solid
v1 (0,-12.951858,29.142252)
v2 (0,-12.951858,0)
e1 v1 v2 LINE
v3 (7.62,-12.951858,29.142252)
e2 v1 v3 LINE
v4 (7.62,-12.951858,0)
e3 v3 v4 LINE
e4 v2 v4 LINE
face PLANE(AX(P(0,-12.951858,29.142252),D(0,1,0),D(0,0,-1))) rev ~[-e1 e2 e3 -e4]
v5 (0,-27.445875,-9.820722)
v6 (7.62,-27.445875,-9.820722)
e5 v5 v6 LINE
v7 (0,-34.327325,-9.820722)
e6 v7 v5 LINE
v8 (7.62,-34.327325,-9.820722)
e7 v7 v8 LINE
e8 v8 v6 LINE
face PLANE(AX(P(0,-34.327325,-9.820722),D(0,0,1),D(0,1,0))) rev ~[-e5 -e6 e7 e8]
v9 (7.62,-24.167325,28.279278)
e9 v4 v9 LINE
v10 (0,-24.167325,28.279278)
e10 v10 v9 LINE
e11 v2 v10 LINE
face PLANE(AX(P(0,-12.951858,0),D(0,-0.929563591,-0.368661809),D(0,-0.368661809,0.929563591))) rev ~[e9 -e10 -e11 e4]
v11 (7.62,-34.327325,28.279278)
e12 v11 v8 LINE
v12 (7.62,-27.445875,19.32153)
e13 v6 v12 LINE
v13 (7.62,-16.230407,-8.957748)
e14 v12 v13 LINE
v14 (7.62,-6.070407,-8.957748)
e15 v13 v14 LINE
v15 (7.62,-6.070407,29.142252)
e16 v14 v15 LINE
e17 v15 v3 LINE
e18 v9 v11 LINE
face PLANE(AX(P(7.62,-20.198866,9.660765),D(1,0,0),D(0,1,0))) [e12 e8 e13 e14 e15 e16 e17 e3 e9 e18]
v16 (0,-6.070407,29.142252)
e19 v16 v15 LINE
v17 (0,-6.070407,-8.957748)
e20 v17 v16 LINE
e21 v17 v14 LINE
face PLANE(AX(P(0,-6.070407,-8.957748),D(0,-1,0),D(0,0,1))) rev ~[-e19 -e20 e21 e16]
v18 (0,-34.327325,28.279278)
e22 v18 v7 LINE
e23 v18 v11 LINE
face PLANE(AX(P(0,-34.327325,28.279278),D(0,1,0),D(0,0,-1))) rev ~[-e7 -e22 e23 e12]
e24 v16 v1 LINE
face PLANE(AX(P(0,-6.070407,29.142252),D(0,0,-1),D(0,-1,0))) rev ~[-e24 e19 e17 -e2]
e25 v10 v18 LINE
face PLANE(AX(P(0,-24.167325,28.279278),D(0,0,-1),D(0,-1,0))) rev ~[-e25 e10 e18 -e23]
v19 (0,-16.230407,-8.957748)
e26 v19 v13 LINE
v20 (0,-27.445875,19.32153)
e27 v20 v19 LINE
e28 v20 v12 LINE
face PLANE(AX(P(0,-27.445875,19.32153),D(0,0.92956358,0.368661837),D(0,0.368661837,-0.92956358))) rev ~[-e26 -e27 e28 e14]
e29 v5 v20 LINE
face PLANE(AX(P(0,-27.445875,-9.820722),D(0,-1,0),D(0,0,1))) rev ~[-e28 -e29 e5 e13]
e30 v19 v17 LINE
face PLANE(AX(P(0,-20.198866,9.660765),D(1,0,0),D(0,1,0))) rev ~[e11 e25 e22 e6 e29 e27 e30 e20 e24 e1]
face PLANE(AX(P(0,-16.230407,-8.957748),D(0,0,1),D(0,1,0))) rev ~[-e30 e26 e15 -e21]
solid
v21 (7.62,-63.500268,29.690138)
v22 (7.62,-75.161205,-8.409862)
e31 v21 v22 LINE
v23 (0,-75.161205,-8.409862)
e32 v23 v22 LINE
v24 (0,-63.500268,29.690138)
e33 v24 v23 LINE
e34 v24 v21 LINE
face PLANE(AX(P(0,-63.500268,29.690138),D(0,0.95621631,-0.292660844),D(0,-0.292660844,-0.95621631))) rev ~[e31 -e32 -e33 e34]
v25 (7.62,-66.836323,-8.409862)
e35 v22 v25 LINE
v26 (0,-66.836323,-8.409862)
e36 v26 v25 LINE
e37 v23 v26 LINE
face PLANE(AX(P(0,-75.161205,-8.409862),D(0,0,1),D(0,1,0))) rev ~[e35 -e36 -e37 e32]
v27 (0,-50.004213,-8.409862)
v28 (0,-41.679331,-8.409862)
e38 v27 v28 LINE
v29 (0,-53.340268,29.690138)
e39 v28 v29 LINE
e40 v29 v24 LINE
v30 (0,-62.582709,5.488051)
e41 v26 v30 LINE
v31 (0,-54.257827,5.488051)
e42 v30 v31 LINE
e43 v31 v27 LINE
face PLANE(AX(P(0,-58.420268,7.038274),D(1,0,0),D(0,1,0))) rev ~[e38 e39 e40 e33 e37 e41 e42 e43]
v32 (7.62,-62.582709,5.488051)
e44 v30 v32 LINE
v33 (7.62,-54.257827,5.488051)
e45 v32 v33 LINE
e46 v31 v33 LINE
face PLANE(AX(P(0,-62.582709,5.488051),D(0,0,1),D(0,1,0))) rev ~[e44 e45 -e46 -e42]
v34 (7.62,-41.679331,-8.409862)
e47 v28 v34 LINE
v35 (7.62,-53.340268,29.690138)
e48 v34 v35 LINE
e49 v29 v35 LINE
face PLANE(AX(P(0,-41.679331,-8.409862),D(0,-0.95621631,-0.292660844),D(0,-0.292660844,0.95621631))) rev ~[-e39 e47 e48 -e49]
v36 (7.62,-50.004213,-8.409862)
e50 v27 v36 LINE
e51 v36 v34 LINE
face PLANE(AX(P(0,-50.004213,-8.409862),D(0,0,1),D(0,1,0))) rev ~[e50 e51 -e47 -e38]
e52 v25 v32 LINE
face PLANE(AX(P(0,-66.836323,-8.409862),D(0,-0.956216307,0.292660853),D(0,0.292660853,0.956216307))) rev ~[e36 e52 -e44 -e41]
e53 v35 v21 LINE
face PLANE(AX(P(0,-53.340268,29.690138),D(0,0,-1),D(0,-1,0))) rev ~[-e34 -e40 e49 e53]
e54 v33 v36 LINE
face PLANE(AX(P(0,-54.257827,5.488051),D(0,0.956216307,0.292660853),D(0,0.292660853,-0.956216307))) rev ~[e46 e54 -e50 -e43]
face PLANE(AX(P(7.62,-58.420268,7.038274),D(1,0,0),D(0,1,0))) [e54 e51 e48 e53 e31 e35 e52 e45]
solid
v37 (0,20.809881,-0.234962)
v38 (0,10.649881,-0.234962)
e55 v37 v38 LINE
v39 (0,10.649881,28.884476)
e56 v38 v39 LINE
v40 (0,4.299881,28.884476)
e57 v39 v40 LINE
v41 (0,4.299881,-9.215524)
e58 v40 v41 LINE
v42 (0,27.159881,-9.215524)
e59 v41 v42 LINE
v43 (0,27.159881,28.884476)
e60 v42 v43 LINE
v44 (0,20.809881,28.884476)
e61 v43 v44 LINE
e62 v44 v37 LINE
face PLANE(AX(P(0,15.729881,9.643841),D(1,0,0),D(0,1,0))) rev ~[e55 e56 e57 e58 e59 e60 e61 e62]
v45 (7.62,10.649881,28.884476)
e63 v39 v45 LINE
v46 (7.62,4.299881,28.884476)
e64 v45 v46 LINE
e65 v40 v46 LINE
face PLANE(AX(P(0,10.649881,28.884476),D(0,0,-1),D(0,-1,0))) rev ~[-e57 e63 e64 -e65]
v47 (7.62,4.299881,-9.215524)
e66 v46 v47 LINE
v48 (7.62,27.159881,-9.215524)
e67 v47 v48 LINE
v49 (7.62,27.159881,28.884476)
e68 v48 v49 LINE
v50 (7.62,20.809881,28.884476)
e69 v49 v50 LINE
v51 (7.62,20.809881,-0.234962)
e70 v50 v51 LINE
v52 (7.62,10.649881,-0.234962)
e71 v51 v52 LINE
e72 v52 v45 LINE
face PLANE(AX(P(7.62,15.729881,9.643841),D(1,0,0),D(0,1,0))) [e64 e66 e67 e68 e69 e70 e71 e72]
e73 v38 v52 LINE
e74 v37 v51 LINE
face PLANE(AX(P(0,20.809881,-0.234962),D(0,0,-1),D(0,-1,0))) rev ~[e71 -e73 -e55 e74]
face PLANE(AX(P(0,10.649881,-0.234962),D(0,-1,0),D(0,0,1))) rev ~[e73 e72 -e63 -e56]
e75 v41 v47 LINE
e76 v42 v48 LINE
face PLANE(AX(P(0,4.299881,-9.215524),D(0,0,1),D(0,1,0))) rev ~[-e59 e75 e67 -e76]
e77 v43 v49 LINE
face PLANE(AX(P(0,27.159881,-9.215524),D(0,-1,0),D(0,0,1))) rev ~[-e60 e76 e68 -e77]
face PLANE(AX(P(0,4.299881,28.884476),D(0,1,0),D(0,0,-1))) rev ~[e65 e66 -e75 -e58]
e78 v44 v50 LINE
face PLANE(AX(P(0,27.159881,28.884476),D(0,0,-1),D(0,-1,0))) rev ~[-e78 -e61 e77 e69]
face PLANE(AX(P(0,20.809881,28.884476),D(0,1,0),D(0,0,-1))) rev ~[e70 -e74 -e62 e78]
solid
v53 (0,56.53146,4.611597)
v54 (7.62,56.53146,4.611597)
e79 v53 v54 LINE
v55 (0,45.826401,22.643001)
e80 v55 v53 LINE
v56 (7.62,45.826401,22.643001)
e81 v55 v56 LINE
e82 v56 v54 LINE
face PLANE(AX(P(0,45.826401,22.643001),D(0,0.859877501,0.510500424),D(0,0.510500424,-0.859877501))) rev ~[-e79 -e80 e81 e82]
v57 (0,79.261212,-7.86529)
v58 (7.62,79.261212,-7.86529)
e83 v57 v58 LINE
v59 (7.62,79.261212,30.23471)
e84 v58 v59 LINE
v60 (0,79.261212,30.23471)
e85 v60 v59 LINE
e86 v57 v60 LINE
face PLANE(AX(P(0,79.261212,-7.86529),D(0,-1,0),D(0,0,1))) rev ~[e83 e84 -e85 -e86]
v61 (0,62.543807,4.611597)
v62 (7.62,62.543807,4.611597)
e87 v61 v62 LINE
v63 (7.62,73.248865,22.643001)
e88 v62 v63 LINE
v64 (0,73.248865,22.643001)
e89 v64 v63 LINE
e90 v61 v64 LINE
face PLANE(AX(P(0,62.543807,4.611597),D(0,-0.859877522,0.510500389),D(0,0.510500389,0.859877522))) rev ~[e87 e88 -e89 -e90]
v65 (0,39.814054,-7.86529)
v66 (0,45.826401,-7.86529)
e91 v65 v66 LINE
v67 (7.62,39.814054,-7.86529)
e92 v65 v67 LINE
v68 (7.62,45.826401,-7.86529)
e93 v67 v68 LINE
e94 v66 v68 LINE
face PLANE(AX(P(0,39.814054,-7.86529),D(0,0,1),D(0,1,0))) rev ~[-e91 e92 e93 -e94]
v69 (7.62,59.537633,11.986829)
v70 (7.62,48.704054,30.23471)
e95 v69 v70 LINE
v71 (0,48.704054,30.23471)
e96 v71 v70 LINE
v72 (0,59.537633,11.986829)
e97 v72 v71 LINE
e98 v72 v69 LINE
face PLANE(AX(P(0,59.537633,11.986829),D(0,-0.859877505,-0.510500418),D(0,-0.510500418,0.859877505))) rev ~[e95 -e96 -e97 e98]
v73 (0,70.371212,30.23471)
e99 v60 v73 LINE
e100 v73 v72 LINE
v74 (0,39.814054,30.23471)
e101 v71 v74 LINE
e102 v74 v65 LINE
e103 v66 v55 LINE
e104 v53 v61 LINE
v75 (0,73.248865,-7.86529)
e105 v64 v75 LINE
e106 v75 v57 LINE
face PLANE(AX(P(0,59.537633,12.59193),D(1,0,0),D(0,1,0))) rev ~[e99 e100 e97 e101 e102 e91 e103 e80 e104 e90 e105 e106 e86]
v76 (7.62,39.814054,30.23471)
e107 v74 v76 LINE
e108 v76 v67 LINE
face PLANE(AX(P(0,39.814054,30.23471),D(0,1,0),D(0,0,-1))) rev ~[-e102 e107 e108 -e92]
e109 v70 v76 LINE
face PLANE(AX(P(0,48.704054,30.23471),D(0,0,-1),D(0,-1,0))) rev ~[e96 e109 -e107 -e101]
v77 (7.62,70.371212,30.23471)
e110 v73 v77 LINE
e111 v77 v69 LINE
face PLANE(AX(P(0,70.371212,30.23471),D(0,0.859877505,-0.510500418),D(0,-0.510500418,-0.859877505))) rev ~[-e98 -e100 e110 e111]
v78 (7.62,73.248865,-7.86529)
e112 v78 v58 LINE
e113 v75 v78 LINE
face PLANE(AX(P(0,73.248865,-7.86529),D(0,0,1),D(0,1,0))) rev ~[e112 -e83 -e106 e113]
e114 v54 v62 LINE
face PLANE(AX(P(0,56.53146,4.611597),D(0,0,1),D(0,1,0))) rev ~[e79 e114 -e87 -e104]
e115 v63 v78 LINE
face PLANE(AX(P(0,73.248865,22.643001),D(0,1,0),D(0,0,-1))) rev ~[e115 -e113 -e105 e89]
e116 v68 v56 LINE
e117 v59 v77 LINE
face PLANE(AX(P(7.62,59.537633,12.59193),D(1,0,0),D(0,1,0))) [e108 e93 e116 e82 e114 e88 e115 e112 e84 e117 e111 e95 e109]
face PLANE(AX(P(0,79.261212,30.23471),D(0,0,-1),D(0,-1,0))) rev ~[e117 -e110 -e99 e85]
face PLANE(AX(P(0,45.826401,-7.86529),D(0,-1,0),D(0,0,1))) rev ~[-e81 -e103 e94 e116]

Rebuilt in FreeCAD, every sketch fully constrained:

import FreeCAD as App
import Part
import Sketcher

V = App.Vector
Q = App.Units.Quantity

doc = App.newDocument("Part")
body = doc.addObject("PartDesign::Body", "Body")
body.AllowCompound = True

# Sketch on YZ plane
sketch1 = body.newObject("Sketcher::SketchObject", "Sketch")
sketch1.AttachmentSupport = (doc.getObject("YZ_Plane"), [""])
sketch1.MapMode = "FlatFace"
sketch1.addGeometry([
    Part.LineSegment(V(-63.500268, 29.690138, 0), V(-75.161205, -8.409862, 0)),  # 0
    Part.LineSegment(V(-75.161205, -8.409862, 0), V(-66.836323, -8.409862, 0)),  # 1
    Part.LineSegment(V(-66.836323, -8.409862, 0), V(-62.582709, 5.488051, 0)),  # 2
    Part.LineSegment(V(-62.582709, 5.488051, 0), V(-54.257827, 5.488051, 0)),  # 3
    Part.LineSegment(V(-54.257827, 5.488051, 0), V(-50.004213, -8.409862, 0)),  # 4
    Part.LineSegment(V(-50.004213, -8.409862, 0), V(-41.679331, -8.409862, 0)),  # 5
    Part.LineSegment(V(-41.679331, -8.409862, 0), V(-53.340268, 29.690138, 0)),  # 6
    Part.LineSegment(V(-53.340268, 29.690138, 0), V(-63.500268, 29.690138, 0)),  # 7
    Part.LineSegment(V(-34.327325, 28.279278, 0), V(-34.327325, -9.820722, 0)),  # 8
    Part.LineSegment(V(-34.327325, -9.820722, 0), V(-27.445875, -9.820722, 0)),  # 9
    Part.LineSegment(V(-27.445875, -9.820722, 0), V(-27.445875, 19.32153, 0)),  # 10
    Part.LineSegment(V(-27.445875, 19.32153, 0), V(-16.230407, -8.957748, 0)),  # 11
    Part.LineSegment(V(-16.230407, -8.957748, 0), V(-6.070407, -8.957748, 0)),  # 12
    Part.LineSegment(V(-6.070407, -8.957748, 0), V(-6.070407, 29.142252, 0)),  # 13
    Part.LineSegment(V(-6.070407, 29.142252, 0), V(-12.951858, 29.142252, 0)),  # 14
    Part.LineSegment(V(-12.951858, 29.142252, 0), V(-12.951858, 0, 0)),  # 15
    Part.LineSegment(V(-12.951858, 0, 0), V(-24.167325, 28.279278, 0)),  # 16
    Part.LineSegment(V(-24.167325, 28.279278, 0), V(-34.327325, 28.279278, 0)),  # 17
    Part.LineSegment(V(10.649881, 28.884476, 0), V(4.299881, 28.884476, 0)),  # 18
    Part.LineSegment(V(4.299881, 28.884476, 0), V(4.299881, -9.215524, 0)),  # 19
    Part.LineSegment(V(4.299881, -9.215524, 0), V(27.159881, -9.215524, 0)),  # 20
    Part.LineSegment(V(27.159881, -9.215524, 0), V(27.159881, 28.884476, 0)),  # 21
    Part.LineSegment(V(27.159881, 28.884476, 0), V(20.809881, 28.884476, 0)),  # 22
    Part.LineSegment(V(20.809881, 28.884476, 0), V(20.809881, -0.234962, 0)),  # 23
    Part.LineSegment(V(20.809881, -0.234962, 0), V(10.649881, -0.234962, 0)),  # 24
    Part.LineSegment(V(10.649881, -0.234962, 0), V(10.649881, 28.884476, 0)),  # 25
    Part.LineSegment(V(39.814054, 30.23471, 0), V(39.814054, -7.86529, 0)),  # 26
    Part.LineSegment(V(39.814054, -7.86529, 0), V(45.826401, -7.86529, 0)),  # 27
    Part.LineSegment(V(45.826401, -7.86529, 0), V(45.826401, 22.643001, 0)),  # 28
    Part.LineSegment(V(45.826401, 22.643001, 0), V(56.53146, 4.611597, 0)),  # 29
    Part.LineSegment(V(56.53146, 4.611597, 0), V(62.543807, 4.611597, 0)),  # 30
    Part.LineSegment(V(62.543807, 4.611597, 0), V(73.248865, 22.643001, 0)),  # 31
    Part.LineSegment(V(73.248865, 22.643001, 0), V(73.248865, -7.86529, 0)),  # 32
    Part.LineSegment(V(73.248865, -7.86529, 0), V(79.261212, -7.86529, 0)),  # 33
    Part.LineSegment(V(79.261212, -7.86529, 0), V(79.261212, 30.23471, 0)),  # 34
    Part.LineSegment(V(79.261212, 30.23471, 0), V(70.371212, 30.23471, 0)),  # 35
    Part.LineSegment(V(70.371212, 30.23471, 0), V(59.537633, 11.986829, 0)),  # 36
    Part.LineSegment(V(59.537633, 11.986829, 0), V(48.704054, 30.23471, 0)),  # 37
    Part.LineSegment(V(48.704054, 30.23471, 0), V(39.814054, 30.23471, 0)),  # 38
], False)
sketch1.addConstraint([
    Sketcher.Constraint("Coincident", 0, 2, 1, 1),
    Sketcher.Constraint("Coincident", 1, 2, 2, 1),
    Sketcher.Constraint("Coincident", 2, 2, 3, 1),
    Sketcher.Constraint("Coincident", 3, 2, 4, 1),
    Sketcher.Constraint("Coincident", 4, 2, 5, 1),
    Sketcher.Constraint("Coincident", 5, 2, 6, 1),
    Sketcher.Constraint("Coincident", 6, 2, 7, 1),
    Sketcher.Constraint("Coincident", 7, 2, 0, 1),
    Sketcher.Constraint("Coincident", 8, 2, 9, 1),
    Sketcher.Constraint("Coincident", 9, 2, 10, 1),
    Sketcher.Constraint("Coincident", 10, 2, 11, 1),
    Sketcher.Constraint("Coincident", 11, 2, 12, 1),
    Sketcher.Constraint("Coincident", 12, 2, 13, 1),
    Sketcher.Constraint("Coincident", 13, 2, 14, 1),
    Sketcher.Constraint("Coincident", 14, 2, 15, 1),
    Sketcher.Constraint("Coincident", 15, 2, 16, 1),
    Sketcher.Constraint("Coincident", 16, 2, 17, 1),
    Sketcher.Constraint("Coincident", 17, 2, 8, 1),
    Sketcher.Constraint("Coincident", 18, 2, 19, 1),
    Sketcher.Constraint("Coincident", 19, 2, 20, 1),
    Sketcher.Constraint("Coincident", 20, 2, 21, 1),
    Sketcher.Constraint("Coincident", 21, 2, 22, 1),
    Sketcher.Constraint("Coincident", 22, 2, 23, 1),
    Sketcher.Constraint("Coincident", 23, 2, 24, 1),
    Sketcher.Constraint("Coincident", 24, 2, 25, 1),
    Sketcher.Constraint("Coincident", 25, 2, 18, 1),
    Sketcher.Constraint("Coincident", 26, 2, 27, 1),
    Sketcher.Constraint("Coincident", 27, 2, 28, 1),
    Sketcher.Constraint("Coincident", 28, 2, 29, 1),
    Sketcher.Constraint("Coincident", 29, 2, 30, 1),
    Sketcher.Constraint("Coincident", 30, 2, 31, 1),
    Sketcher.Constraint("Coincident", 31, 2, 32, 1),
    Sketcher.Constraint("Coincident", 32, 2, 33, 1),
    Sketcher.Constraint("Coincident", 33, 2, 34, 1),
    Sketcher.Constraint("Coincident", 34, 2, 35, 1),
    Sketcher.Constraint("Coincident", 35, 2, 36, 1),
    Sketcher.Constraint("Coincident", 36, 2, 37, 1),
    Sketcher.Constraint("Coincident", 37, 2, 38, 1),
    Sketcher.Constraint("Coincident", 38, 2, 26, 1),
    Sketcher.Constraint("Horizontal", 1),
    Sketcher.Constraint("Horizontal", 3),
    Sketcher.Constraint("Horizontal", 5),
    Sketcher.Constraint("Horizontal", 7),
    Sketcher.Constraint("Vertical", 8),
    Sketcher.Constraint("Horizontal", 9),
    Sketcher.Constraint("Vertical", 10),
    Sketcher.Constraint("Horizontal", 12),
    Sketcher.Constraint("Vertical", 13),
    Sketcher.Constraint("Horizontal", 14),
    Sketcher.Constraint("Vertical", 15),
    Sketcher.Constraint("Horizontal", 17),
    Sketcher.Constraint("Horizontal", 18),
    Sketcher.Constraint("Vertical", 19),
    Sketcher.Constraint("Horizontal", 20),
    Sketcher.Constraint("Vertical", 21),
    Sketcher.Constraint("Horizontal", 22),
    Sketcher.Constraint("Vertical", 23),
    Sketcher.Constraint("Horizontal", 24),
    Sketcher.Constraint("Vertical", 25),
    Sketcher.Constraint("Vertical", 26),
    Sketcher.Constraint("Horizontal", 27),
    Sketcher.Constraint("Vertical", 28),
    Sketcher.Constraint("Horizontal", 30),
    Sketcher.Constraint("Vertical", 32),
    Sketcher.Constraint("Horizontal", 33),
    Sketcher.Constraint("Vertical", 34),
    Sketcher.Constraint("Horizontal", 35),
    Sketcher.Constraint("Horizontal", 38),
    Sketcher.Constraint("PointOnObject", 15, 2, -1),
    Sketcher.Constraint("Parallel", 0, 2),
    Sketcher.Constraint("Parallel", 4, 6),
    Sketcher.Constraint("Parallel", 11, 16),
    Sketcher.Constraint("Parallel", 31, 36),
    Sketcher.Constraint("Parallel", 29, 37),
    Sketcher.Constraint("Horizontal", 1, 2, 4, 2),
    Sketcher.Constraint("Horizontal", 18, 2, 21, 2),
    Sketcher.Constraint("Horizontal", 28, 2, 31, 2),
    Sketcher.Constraint("Horizontal", 27, 2, 32, 2),
    Sketcher.Constraint("Horizontal", 35, 2, 37, 2),
    Sketcher.Constraint("Equal", 1, 3),
    Sketcher.Constraint("Equal", 3, 5),
    Sketcher.Constraint("Equal", 7, 12),
    Sketcher.Constraint("Equal", 9, 14),
    Sketcher.Constraint("Equal", 12, 17),
    Sketcher.Constraint("Equal", 18, 22),
    Sketcher.Constraint("Equal", 17, 24),
    Sketcher.Constraint("Equal", 27, 30),
    Sketcher.Constraint("Equal", 30, 33),
    Sketcher.Constraint("Equal", 35, 38),
    Sketcher.Constraint("Equal", 8, 13),
    Sketcher.Constraint("Equal", 13, 19),
    Sketcher.Constraint("Equal", 21, 26),
    Sketcher.Constraint("Equal", 2, 4),
    Sketcher.Constraint("Equal", 29, 31),
    Sketcher.Constraint("DistanceX", 7, 2, 7, 1, Q("0.4 in")),
    Sketcher.Constraint("DistanceX", 20, 1, 20, 2, Q("0.9 in")),
    Sketcher.Constraint("DistanceY", 8, 2, 8, 1, Q("1.5 in")),
    Sketcher.Constraint("DistanceX", 35, 2, 35, 1, Q("0.35 in")),
    Sketcher.Constraint("DistanceY", 4, 2, 6, 2, Q("1.5 in")),
    Sketcher.Constraint("Distance", 11, Q("30.422102 mm")),
    Sketcher.Constraint("DistanceX", 9, 1, 9, 2, Q("6.88145 mm")),
    Sketcher.Constraint("DistanceY", 10, 1, 10, 2, Q("29.142252 mm")),
    Sketcher.Constraint("DistanceY", 28, 1, 28, 2, Q("30.508291 mm")),
    Sketcher.Constraint("DistanceX", -1, 1, 27, 2, Q("45.826401 mm")),
    Sketcher.Constraint("DistanceY", -1, 1, 28, 2, Q("22.643001 mm")),
    Sketcher.Constraint("DistanceX", 3, 2, 8, 2, Q("19.930502 mm")),
    Sketcher.Constraint("Distance", 0, Q("39.844541 mm")),
    Sketcher.Constraint("Distance", 36, Q("21.221489 mm")),
    Sketcher.Constraint("DistanceX", 1, 1, 1, 2, Q("8.324882 mm")),
    Sketcher.Constraint("DistanceX", 27, 1, 27, 2, Q("6.012347 mm")),
    Sketcher.Constraint("DistanceY", 23, 2, 23, 1, Q("29.119438 mm")),
    Sketcher.Constraint("DistanceX", 2, 2, -1, 1, Q("62.582709 mm")),
    Sketcher.Constraint("DistanceY", -1, 1, 2, 2, Q("5.488051 mm")),
    Sketcher.Constraint("DistanceY", -1, 1, 10, 2, Q("19.32153 mm")),
    Sketcher.Constraint("DistanceX", -1, 1, 18, 2, Q("4.299881 mm")),
    Sketcher.Constraint("DistanceX", -1, 1, 29, 2, Q("56.53146 mm")),
    Sketcher.Constraint("DistanceY", 20, 2, 29, 2, Q("13.827121 mm")),
])
pad1 = body.newObject("PartDesign::Pad", "Pad")
pad1.Profile = sketch1
pad1.Length = Q("0.3 in")

doc.recompute()
